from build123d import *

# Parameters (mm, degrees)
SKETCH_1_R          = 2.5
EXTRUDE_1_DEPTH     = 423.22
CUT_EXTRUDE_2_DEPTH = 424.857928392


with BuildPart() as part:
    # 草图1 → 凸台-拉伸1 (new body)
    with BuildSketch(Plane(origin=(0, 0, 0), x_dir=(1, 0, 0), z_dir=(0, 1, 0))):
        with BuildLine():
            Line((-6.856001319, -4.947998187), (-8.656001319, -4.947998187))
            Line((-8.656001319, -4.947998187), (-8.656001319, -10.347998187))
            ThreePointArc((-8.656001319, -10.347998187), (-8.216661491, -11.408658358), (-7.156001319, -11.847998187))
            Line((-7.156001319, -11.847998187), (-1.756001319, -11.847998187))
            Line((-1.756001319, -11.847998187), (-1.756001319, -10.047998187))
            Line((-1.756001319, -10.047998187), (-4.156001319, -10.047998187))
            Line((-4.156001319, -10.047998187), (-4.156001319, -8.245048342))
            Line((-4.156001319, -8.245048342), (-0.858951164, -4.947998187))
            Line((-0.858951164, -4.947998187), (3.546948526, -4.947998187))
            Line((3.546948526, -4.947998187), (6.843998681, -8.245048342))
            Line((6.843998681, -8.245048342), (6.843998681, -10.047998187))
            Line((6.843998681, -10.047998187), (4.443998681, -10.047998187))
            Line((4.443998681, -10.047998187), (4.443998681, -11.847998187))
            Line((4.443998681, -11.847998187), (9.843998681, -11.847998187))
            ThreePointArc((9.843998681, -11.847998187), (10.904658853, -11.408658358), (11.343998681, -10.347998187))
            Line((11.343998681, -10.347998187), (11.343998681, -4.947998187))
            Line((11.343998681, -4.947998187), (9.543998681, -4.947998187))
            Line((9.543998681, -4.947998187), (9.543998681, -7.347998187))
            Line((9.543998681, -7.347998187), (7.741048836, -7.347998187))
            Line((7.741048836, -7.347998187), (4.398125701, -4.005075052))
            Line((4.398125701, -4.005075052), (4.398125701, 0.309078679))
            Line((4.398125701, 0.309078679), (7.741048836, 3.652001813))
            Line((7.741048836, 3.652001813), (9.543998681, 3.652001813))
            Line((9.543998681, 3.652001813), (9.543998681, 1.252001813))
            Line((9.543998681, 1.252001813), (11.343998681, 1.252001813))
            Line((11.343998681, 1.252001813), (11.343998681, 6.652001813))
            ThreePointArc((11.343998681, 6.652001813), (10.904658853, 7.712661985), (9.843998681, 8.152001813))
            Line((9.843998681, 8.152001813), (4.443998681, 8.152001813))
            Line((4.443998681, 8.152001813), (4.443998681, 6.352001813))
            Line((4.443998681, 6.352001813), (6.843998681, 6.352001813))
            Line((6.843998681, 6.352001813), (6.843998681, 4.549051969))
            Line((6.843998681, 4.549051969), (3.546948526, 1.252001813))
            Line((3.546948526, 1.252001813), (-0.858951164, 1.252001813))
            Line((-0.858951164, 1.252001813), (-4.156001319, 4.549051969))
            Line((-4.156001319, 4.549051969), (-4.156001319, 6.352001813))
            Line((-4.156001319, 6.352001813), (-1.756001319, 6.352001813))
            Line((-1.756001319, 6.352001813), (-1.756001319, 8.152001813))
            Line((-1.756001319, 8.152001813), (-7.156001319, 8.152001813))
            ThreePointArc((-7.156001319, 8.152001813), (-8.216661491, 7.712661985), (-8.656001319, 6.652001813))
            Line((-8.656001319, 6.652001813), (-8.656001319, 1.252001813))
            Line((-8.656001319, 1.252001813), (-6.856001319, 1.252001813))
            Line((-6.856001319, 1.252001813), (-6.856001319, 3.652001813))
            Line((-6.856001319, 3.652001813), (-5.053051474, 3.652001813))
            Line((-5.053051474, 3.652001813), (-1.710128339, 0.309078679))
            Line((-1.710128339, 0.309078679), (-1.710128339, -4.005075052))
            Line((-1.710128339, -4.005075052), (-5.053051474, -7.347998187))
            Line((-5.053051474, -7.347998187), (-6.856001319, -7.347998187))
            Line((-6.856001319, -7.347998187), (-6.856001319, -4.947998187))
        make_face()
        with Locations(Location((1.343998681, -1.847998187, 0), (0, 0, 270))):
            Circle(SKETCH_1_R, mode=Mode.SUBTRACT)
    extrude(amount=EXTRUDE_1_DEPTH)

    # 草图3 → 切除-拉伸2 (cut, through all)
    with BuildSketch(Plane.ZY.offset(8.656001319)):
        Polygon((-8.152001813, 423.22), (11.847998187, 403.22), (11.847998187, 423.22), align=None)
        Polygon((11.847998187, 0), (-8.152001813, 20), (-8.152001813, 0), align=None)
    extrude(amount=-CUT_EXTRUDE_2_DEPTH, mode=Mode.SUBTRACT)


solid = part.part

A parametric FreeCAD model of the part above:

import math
import FreeCAD as App
import Part
import Sketcher
from FreeCAD import Vector
Q = App.Units.Quantity

doc = App.newDocument("Part")
params = doc.addObject("Spreadsheet::Sheet", "Params")
for row, (alias, value) in enumerate([
    ("sketch1_diameter", "5 mm"),
    ("sketch1_radius", "1.5 mm"),
    ("sketch1_width", "1.8 mm"),
    ("sketch1_width2", "5.4 mm"),
    ("sketch1_width3", "2.4 mm"),
    ("pad1_length", "423.22 mm"),
    ("sketch2_width", "20 mm"),
], start=1):
    params.set(f"A{row}", alias)
    params.set(f"B{row}", "=" + value)
    params.setAlias(f"B{row}", alias)

body = doc.addObject("PartDesign::Body", "Body")

sketch1 = doc.addObject("Sketcher::SketchObject", "Sketch")
body.addObject(sketch1)
sketch1.AttachmentSupport = (doc.XZ_Plane, [""])
sketch1.MapMode = "FlatFace"
sketch1.addGeometry(Part.LineSegment(Vector(-6.856001, 4.947998, 0), Vector(-8.656001, 4.947998, 0)), False)
sketch1.addGeometry(Part.LineSegment(Vector(-8.656001, 4.947998, 0), Vector(-8.656001, 10.347998, 0)), False)
sketch1.addGeometry(Part.ArcOfCircle(Part.Circle(Vector(-7.156001, 10.347998, 0), Vector(0, 0, 1), 1.5), math.radians(90), math.radians(180)), False)
sketch1.addGeometry(Part.LineSegment(Vector(-7.156001, 11.847998, 0), Vector(-1.756001, 11.847998, 0)), False)
sketch1.addGeometry(Part.LineSegment(Vector(-1.756001, 11.847998, 0), Vector(-1.756001, 10.047998, 0)), False)
sketch1.addGeometry(Part.LineSegment(Vector(-1.756001, 10.047998, 0), Vector(-4.156001, 10.047998, 0)), False)
sketch1.addGeometry(Part.LineSegment(Vector(-4.156001, 10.047998, 0), Vector(-4.156001, 8.245048, 0)), False)
sketch1.addGeometry(Part.LineSegment(Vector(-4.156001, 8.245048, 0), Vector(-0.858951, 4.947998, 0)), False)
sketch1.addGeometry(Part.LineSegment(Vector(-0.858951, 4.947998, 0), Vector(3.546949, 4.947998, 0)), False)
sketch1.addGeometry(Part.LineSegment(Vector(3.546949, 4.947998, 0), Vector(6.843999, 8.245048, 0)), False)
sketch1.addGeometry(Part.LineSegment(Vector(6.843999, 8.245048, 0), Vector(6.843999, 10.047998, 0)), False)
sketch1.addGeometry(Part.LineSegment(Vector(6.843999, 10.047998, 0), Vector(4.443999, 10.047998, 0)), False)
sketch1.addGeometry(Part.LineSegment(Vector(4.443999, 10.047998, 0), Vector(4.443999, 11.847998, 0)), False)
sketch1.addGeometry(Part.LineSegment(Vector(4.443999, 11.847998, 0), Vector(9.843999, 11.847998, 0)), False)
sketch1.addGeometry(Part.ArcOfCircle(Part.Circle(Vector(9.843999, 10.347998, 0), Vector(0, 0, 1), 1.5), math.radians(0), math.radians(90)), False)
sketch1.addGeometry(Part.LineSegment(Vector(11.343999, 10.347998, 0), Vector(11.343999, 4.947998, 0)), False)
sketch1.addGeometry(Part.LineSegment(Vector(11.343999, 4.947998, 0), Vector(9.543999, 4.947998, 0)), False)
sketch1.addGeometry(Part.LineSegment(Vector(9.543999, 4.947998, 0), Vector(9.543999, 7.347998, 0)), False)
sketch1.addGeometry(Part.LineSegment(Vector(9.543999, 7.347998, 0), Vector(7.741049, 7.347998, 0)), False)
sketch1.addGeometry(Part.LineSegment(Vector(7.741049, 7.347998, 0), Vector(4.398126, 4.005075, 0)), False)
sketch1.addGeometry(Part.LineSegment(Vector(4.398126, 4.005075, 0), Vector(4.398126, -0.309079, 0)), False)
sketch1.addGeometry(Part.LineSegment(Vector(4.398126, -0.309079, 0), Vector(7.741049, -3.652002, 0)), False)
sketch1.addGeometry(Part.LineSegment(Vector(7.741049, -3.652002, 0), Vector(9.543999, -3.652002, 0)), False)
sketch1.addGeometry(Part.LineSegment(Vector(9.543999, -3.652002, 0), Vector(9.543999, -1.252002, 0)), False)
sketch1.addGeometry(Part.LineSegment(Vector(9.543999, -1.252002, 0), Vector(11.343999, -1.252002, 0)), False)
sketch1.addGeometry(Part.LineSegment(Vector(11.343999, -1.252002, 0), Vector(11.343999, -6.652002, 0)), False)
sketch1.addGeometry(Part.ArcOfCircle(Part.Circle(Vector(9.843999, -6.652002, 0), Vector(0, 0, 1), 1.5), math.radians(-90), math.radians(0)), False)
sketch1.addGeometry(Part.LineSegment(Vector(9.843999, -8.152002, 0), Vector(4.443999, -8.152002, 0)), False)
sketch1.addGeometry(Part.LineSegment(Vector(4.443999, -8.152002, 0), Vector(4.443999, -6.352002, 0)), False)
sketch1.addGeometry(Part.LineSegment(Vector(4.443999, -6.352002, 0), Vector(6.843999, -6.352002, 0)), False)
sketch1.addGeometry(Part.LineSegment(Vector(6.843999, -6.352002, 0), Vector(6.843999, -4.549052, 0)), False)
sketch1.addGeometry(Part.LineSegment(Vector(6.843999, -4.549052, 0), Vector(3.546949, -1.252002, 0)), False)
sketch1.addGeometry(Part.LineSegment(Vector(3.546949, -1.252002, 0), Vector(-0.858951, -1.252002, 0)), False)
sketch1.addGeometry(Part.LineSegment(Vector(-0.858951, -1.252002, 0), Vector(-4.156001, -4.549052, 0)), False)
sketch1.addGeometry(Part.LineSegment(Vector(-4.156001, -4.549052, 0), Vector(-4.156001, -6.352002, 0)), False)
sketch1.addGeometry(Part.LineSegment(Vector(-4.156001, -6.352002, 0), Vector(-1.756001, -6.352002, 0)), False)
sketch1.addGeometry(Part.LineSegment(Vector(-1.756001, -6.352002, 0), Vector(-1.756001, -8.152002, 0)), False)
sketch1.addGeometry(Part.LineSegment(Vector(-1.756001, -8.152002, 0), Vector(-7.156001, -8.152002, 0)), False)
sketch1.addGeometry(Part.ArcOfCircle(Part.Circle(Vector(-7.156001, -6.652002, 0), Vector(0, 0, 1), 1.5), math.radians(180), math.radians(270)), False)
sketch1.addGeometry(Part.LineSegment(Vector(-8.656001, -6.652002, 0), Vector(-8.656001, -1.252002, 0)), False)
sketch1.addGeometry(Part.LineSegment(Vector(-8.656001, -1.252002, 0), Vector(-6.856001, -1.252002, 0)), False)
sketch1.addGeometry(Part.LineSegment(Vector(-6.856001, -1.252002, 0), Vector(-6.856001, -3.652002, 0)), False)
sketch1.addGeometry(Part.LineSegment(Vector(-6.856001, -3.652002, 0), Vector(-5.053051, -3.652002, 0)), False)
sketch1.addGeometry(Part.LineSegment(Vector(-5.053051, -3.652002, 0), Vector(-1.710128, -0.309079, 0)), False)
sketch1.addGeometry(Part.LineSegment(Vector(-1.710128, -0.309079, 0), Vector(-1.710128, 4.005075, 0)), False)
sketch1.addGeometry(Part.LineSegment(Vector(-1.710128, 4.005075, 0), Vector(-5.053051, 7.347998, 0)), False)
sketch1.addGeometry(Part.LineSegment(Vector(-5.053051, 7.347998, 0), Vector(-6.856001, 7.347998, 0)), False)
sketch1.addGeometry(Part.LineSegment(Vector(-6.856001, 7.347998, 0), Vector(-6.856001, 4.947998, 0)), False)
sketch1.addGeometry(Part.Circle(Vector(1.343999, 1.847998, 0), Vector(0, 0, 1), 2.5), False)
sketch1.addConstraint(Sketcher.Constraint("Coincident", 0, 2, 1, 1))
sketch1.addConstraint(Sketcher.Constraint("Tangent", 1, 2, 2, 2))
sketch1.addConstraint(Sketcher.Constraint("Tangent", 2, 1, 3, 1))
sketch1.addConstraint(Sketcher.Constraint("Coincident", 3, 2, 4, 1))
sketch1.addConstraint(Sketcher.Constraint("Coincident", 4, 2, 5, 1))
sketch1.addConstraint(Sketcher.Constraint("Coincident", 5, 2, 6, 1))
sketch1.addConstraint(Sketcher.Constraint("Coincident", 6, 2, 7, 1))
sketch1.addConstraint(Sketcher.Constraint("Coincident", 7, 2, 8, 1))
sketch1.addConstraint(Sketcher.Constraint("Coincident", 8, 2, 9, 1))
sketch1.addConstraint(Sketcher.Constraint("Coincident", 9, 2, 10, 1))
sketch1.addConstraint(Sketcher.Constraint("Coincident", 10, 2, 11, 1))
sketch1.addConstraint(Sketcher.Constraint("Coincident", 11, 2, 12, 1))
sketch1.addConstraint(Sketcher.Constraint("Coincident", 12, 2, 13, 1))
sketch1.addConstraint(Sketcher.Constraint("Tangent", 13, 2, 14, 2))
sketch1.addConstraint(Sketcher.Constraint("Tangent", 14, 1, 15, 1))
sketch1.addConstraint(Sketcher.Constraint("Coincident", 15, 2, 16, 1))
sketch1.addConstraint(Sketcher.Constraint("Coincident", 16, 2, 17, 1))
sketch1.addConstraint(Sketcher.Constraint("Coincident", 17, 2, 18, 1))
sketch1.addConstraint(Sketcher.Constraint("Coincident", 18, 2, 19, 1))
sketch1.addConstraint(Sketcher.Constraint("Coincident", 19, 2, 20, 1))
sketch1.addConstraint(Sketcher.Constraint("Coincident", 20, 2, 21, 1))
sketch1.addConstraint(Sketcher.Constraint("Coincident", 21, 2, 22, 1))
sketch1.addConstraint(Sketcher.Constraint("Coincident", 22, 2, 23, 1))
sketch1.addConstraint(Sketcher.Constraint("Coincident", 23, 2, 24, 1))
sketch1.addConstraint(Sketcher.Constraint("Coincident", 24, 2, 25, 1))
sketch1.addConstraint(Sketcher.Constraint("Tangent", 25, 2, 26, 2))
sketch1.addConstraint(Sketcher.Constraint("Tangent", 26, 1, 27, 1))
sketch1.addConstraint(Sketcher.Constraint("Coincident", 27, 2, 28, 1))
sketch1.addConstraint(Sketcher.Constraint("Coincident", 28, 2, 29, 1))
sketch1.addConstraint(Sketcher.Constraint("Coincident", 29, 2, 30, 1))
sketch1.addConstraint(Sketcher.Constraint("Coincident", 30, 2, 31, 1))
sketch1.addConstraint(Sketcher.Constraint("Coincident", 31, 2, 32, 1))
sketch1.addConstraint(Sketcher.Constraint("Coincident", 32, 2, 33, 1))
sketch1.addConstraint(Sketcher.Constraint("Coincident", 33, 2, 34, 1))
sketch1.addConstraint(Sketcher.Constraint("Coincident", 34, 2, 35, 1))
sketch1.addConstraint(Sketcher.Constraint("Coincident", 35, 2, 36, 1))
sketch1.addConstraint(Sketcher.Constraint("Coincident", 36, 2, 37, 1))
sketch1.addConstraint(Sketcher.Constraint("Tangent", 37, 2, 38, 2))
sketch1.addConstraint(Sketcher.Constraint("Tangent", 38, 1, 39, 1))
sketch1.addConstraint(Sketcher.Constraint("Coincident", 39, 2, 40, 1))
sketch1.addConstraint(Sketcher.Constraint("Coincident", 40, 2, 41, 1))
sketch1.addConstraint(Sketcher.Constraint("Coincident", 41, 2, 42, 1))
sketch1.addConstraint(Sketcher.Constraint("Coincident", 42, 2, 43, 1))
sketch1.addConstraint(Sketcher.Constraint("Coincident", 43, 2, 44, 1))
sketch1.addConstraint(Sketcher.Constraint("Coincident", 44, 2, 45, 1))
sketch1.addConstraint(Sketcher.Constraint("Coincident", 45, 2, 46, 1))
sketch1.addConstraint(Sketcher.Constraint("Coincident", 46, 2, 47, 1))
sketch1.addConstraint(Sketcher.Constraint("Coincident", 47, 2, 0, 1))
sketch1.addConstraint(Sketcher.Constraint("Horizontal", 0))
sketch1.addConstraint(Sketcher.Constraint("Vertical", 1))
sketch1.addConstraint(Sketcher.Constraint("Horizontal", 3))
sketch1.addConstraint(Sketcher.Constraint("Vertical", 4))
sketch1.addConstraint(Sketcher.Constraint("Horizontal", 5))
sketch1.addConstraint(Sketcher.Constraint("Vertical", 6))
sketch1.addConstraint(Sketcher.Constraint("Horizontal", 8))
sketch1.addConstraint(Sketcher.Constraint("Vertical", 10))
sketch1.addConstraint(Sketcher.Constraint("Horizontal", 11))
sketch1.addConstraint(Sketcher.Constraint("Vertical", 12))
sketch1.addConstraint(Sketcher.Constraint("Horizontal", 13))
sketch1.addConstraint(Sketcher.Constraint("Vertical", 15))
sketch1.addConstraint(Sketcher.Constraint("Horizontal", 16))
sketch1.addConstraint(Sketcher.Constraint("Vertical", 17))
sketch1.addConstraint(Sketcher.Constraint("Horizontal", 18))
sketch1.addConstraint(Sketcher.Constraint("Vertical", 20))
sketch1.addConstraint(Sketcher.Constraint("Horizontal", 22))
sketch1.addConstraint(Sketcher.Constraint("Vertical", 23))
sketch1.addConstraint(Sketcher.Constraint("Horizontal", 24))
sketch1.addConstraint(Sketcher.Constraint("Vertical", 25))
sketch1.addConstraint(Sketcher.Constraint("Horizontal", 27))
sketch1.addConstraint(Sketcher.Constraint("Vertical", 28))
sketch1.addConstraint(Sketcher.Constraint("Horizontal", 29))
sketch1.addConstraint(Sketcher.Constraint("Vertical", 30))
sketch1.addConstraint(Sketcher.Constraint("Horizontal", 32))
sketch1.addConstraint(Sketcher.Constraint("Vertical", 34))
sketch1.addConstraint(Sketcher.Constraint("Horizontal", 35))
sketch1.addConstraint(Sketcher.Constraint("Vertical", 36))
sketch1.addConstraint(Sketcher.Constraint("Horizontal", 37))
sketch1.addConstraint(Sketcher.Constraint("Vertical", 39))
sketch1.addConstraint(Sketcher.Constraint("Horizontal", 40))
sketch1.addConstraint(Sketcher.Constraint("Vertical", 41))
sketch1.addConstraint(Sketcher.Constraint("Horizontal", 42))
sketch1.addConstraint(Sketcher.Constraint("Vertical", 44))
sketch1.addConstraint(Sketcher.Constraint("Horizontal", 46))
sketch1.addConstraint(Sketcher.Constraint("Vertical", 47))
sketch1.addConstraint(Sketcher.Constraint("Equal", 2, 14))
sketch1.addConstraint(Sketcher.Constraint("Equal", 14, 26))
sketch1.addConstraint(Sketcher.Constraint("Equal", 26, 38))
sketch1.addConstraint(Sketcher.Constraint("Perpendicular", 7, 9))
sketch1.addConstraint(Sketcher.Constraint("Parallel", 9, 19))
sketch1.addConstraint(Sketcher.Constraint("Perpendicular", 19, 21))
sketch1.addConstraint(Sketcher.Constraint("Parallel", 21, 31))
sketch1.addConstraint(Sketcher.Constraint("Perpendicular", 31, 33))
sketch1.addConstraint(Sketcher.Constraint("Parallel", 33, 43))
sketch1.addConstraint(Sketcher.Constraint("Perpendicular", 43, 45))
sketch1.addConstraint(Sketcher.Constraint("Horizontal", 2, 3, 14, 3))
sketch1.addConstraint(Sketcher.Constraint("Horizontal", 26, 3, 38, 3))
sketch1.addConstraint(Sketcher.Constraint("Horizontal", 0, 2, 7, 2))
sketch1.addConstraint(Sketcher.Constraint("Horizontal", 6, 2, 9, 2))
sketch1.addConstraint(Sketcher.Constraint("Horizontal", 5, 2, 10, 2))
sketch1.addConstraint(Sketcher.Constraint("Horizontal", 8, 2, 15, 2))
sketch1.addConstraint(Sketcher.Constraint("Horizontal", 24, 2, 31, 2))
sketch1.addConstraint(Sketcher.Constraint("Horizontal", 30, 2, 33, 2))
sketch1.addConstraint(Sketcher.Constraint("Horizontal", 29, 2, 34, 2))
sketch1.addConstraint(Sketcher.Constraint("Horizontal", 32, 2, 39, 2))
sketch1.addConstraint(Sketcher.Constraint("Horizontal", 22, 2, 41, 2))
sketch1.addConstraint(Sketcher.Constraint("Horizontal", 20, 2, 43, 2))
sketch1.addConstraint(Sketcher.Constraint("Horizontal", 19, 2, 44, 2))
sketch1.addConstraint(Sketcher.Constraint("Horizontal", 18, 2, 45, 2))
sketch1.addConstraint(Sketcher.Constraint("Vertical", 14, 3, 26, 3))
sketch1.addConstraint(Sketcher.Constraint("Vertical", 2, 3, 38, 3))
sketch1.addConstraint(Sketcher.Constraint("Vertical", 18, 2, 21, 2))
sketch1.addConstraint(Sketcher.Constraint("Vertical", 17, 2, 22, 2))
sketch1.addConstraint(Sketcher.Constraint("Vertical", 12, 2, 27, 2))
sketch1.addConstraint(Sketcher.Constraint("Vertical", 10, 2, 29, 2))
sketch1.addConstraint(Sketcher.Constraint("Vertical", 8, 2, 31, 2))
sketch1.addConstraint(Sketcher.Constraint("Vertical", 7, 2, 32, 2))
sketch1.addConstraint(Sketcher.Constraint("Vertical", 6, 2, 33, 2))
sketch1.addConstraint(Sketcher.Constraint("Vertical", 4, 2, 35, 2))
sketch1.addConstraint(Sketcher.Constraint("Vertical", 41, 2, 46, 2))
sketch1.addConstraint(Sketcher.Constraint("Equal", 5, 11))
sketch1.addConstraint(Sketcher.Constraint("Equal", 3, 13))
sketch1.addConstraint(Sketcher.Constraint("Equal", 0, 16))
sketch1.addConstraint(Sketcher.Constraint("Equal", 22, 42))
sketch1.addConstraint(Sketcher.Constraint("Equal", 37, 1))
sketch1.addConstraint(Sketcher.Constraint("Equal", 40, 4))
sketch1.addConstraint(Sketcher.Constraint("Equal", 46, 6))
sketch1.addConstraint(Sketcher.Constraint("Equal", 35, 17))
sketch1.addConstraint(Sketcher.Constraint("Equal", 17, 23))
sketch1.addConstraint(Sketcher.Constraint("Equal", 15, 25))
sketch1.addConstraint(Sketcher.Constraint("Equal", 12, 28))
sketch1.addConstraint(Sketcher.Constraint("Diameter", 48, Q("5 mm")))
sketch1.addConstraint(Sketcher.Constraint("Radius", 2, Q("1.5 mm")))
sketch1.addConstraint(Sketcher.Constraint("DistanceX", 0, 2, 0, 1, Q("1.8 mm")))
sketch1.addConstraint(Sketcher.Constraint("DistanceX", 3, 1, 3, 2, Q("5.4 mm")))
sketch1.addConstraint(Sketcher.Constraint("DistanceX", 5, 2, 5, 1, Q("2.4 mm")))
sketch1.addConstraint(Sketcher.Constraint("DistanceX", 2, 3, 14, 3, Q("17 mm")))
sketch1.addConstraint(Sketcher.Constraint("DistanceY", 26, 3, 14, 3, Q("17 mm")))
sketch1.addConstraint(Sketcher.Constraint("DistanceX", 0, 2, 48, 3, Q("10 mm")))
sketch1.addConstraint(Sketcher.Constraint("DistanceY", 48, 3, 2, 1, Q("10 mm")))
sketch1.addConstraint(Sketcher.Constraint("DistanceX", 8, 1, 8, 2, Q("4.4059 mm")))
sketch1.addConstraint(Sketcher.Constraint("DistanceX", 2, 3, -1, 1, Q("7.156001 mm")))
sketch1.addConstraint(Sketcher.Constraint("DistanceY", -1, 1, 2, 3, Q("10.347998 mm")))
sketch1.addConstraint(Sketcher.Constraint("DistanceY", 20, 2, 20, 1, Q("4.314154 mm")))
sketch1.setExpression("Constraints[130]", "Params.sketch1_diameter")
sketch1.setExpression("Constraints[131]", "Params.sketch1_radius")
sketch1.setExpression("Constraints[132]", "Params.sketch1_width")
sketch1.setExpression("Constraints[133]", "Params.sketch1_width2")
sketch1.setExpression("Constraints[134]", "Params.sketch1_width3")
pad1 = doc.addObject("PartDesign::Pad", "Pad")
body.addObject(pad1)
pad1.Profile = sketch1
pad1.setExpression("Length", "Params.pad1_length")
pad1.Reversed = True

sketch2 = doc.addObject("Sketcher::SketchObject", "Sketch001")
body.addObject(sketch2)
sketch2.AttachmentSupport = (doc.YZ_Plane, [""])
sketch2.MapMode = "FlatFace"
sketch2.AttachmentOffset = App.Placement(Vector(0, 0, -8.656001), App.Rotation())
sketch2.addGeometry(Part.LineSegment(Vector(423.22, -8.152002, 0), Vector(403.22, 11.847998, 0)), False)
sketch2.addGeometry(Part.LineSegment(Vector(403.22, 11.847998, 0), Vector(423.22, 11.847998, 0)), False)
sketch2.addGeometry(Part.LineSegment(Vector(423.22, 11.847998, 0), Vector(423.22, -8.152002, 0)), False)
sketch2.addGeometry(Part.LineSegment(Vector(0, 11.847998, 0), Vector(20, -8.152002, 0)), False)
sketch2.addGeometry(Part.LineSegment(Vector(20, -8.152002, 0), Vector(0, -8.152002, 0)), False)
sketch2.addGeometry(Part.LineSegment(Vector(0, -8.152002, 0), Vector(0, 11.847998, 0)), False)
sketch2.addConstraint(Sketcher.Constraint("Coincident", 0, 2, 1, 1))
sketch2.addConstraint(Sketcher.Constraint("Coincident", 1, 2, 2, 1))
sketch2.addConstraint(Sketcher.Constraint("Coincident", 2, 2, 0, 1))
sketch2.addConstraint(Sketcher.Constraint("Coincident", 3, 2, 4, 1))
sketch2.addConstraint(Sketcher.Constraint("Coincident", 4, 2, 5, 1))
sketch2.addConstraint(Sketcher.Constraint("Coincident", 5, 2, 3, 1))
sketch2.addConstraint(Sketcher.Constraint("Horizontal", 1))
sketch2.addConstraint(Sketcher.Constraint("Vertical", 2))
sketch2.addConstraint(Sketcher.Constraint("Horizontal", 4))
sketch2.addConstraint(Sketcher.Constraint("Vertical", 5))
sketch2.addConstraint(Sketcher.Constraint("PointOnObject", 4, 2, -2))
sketch2.addConstraint(Sketcher.Constraint("Parallel", 0, 3))
sketch2.addConstraint(Sketcher.Constraint("Horizontal", 2, 2, 3, 2))
sketch2.addConstraint(Sketcher.Constraint("Horizontal", 1, 2, 5, 2))
sketch2.addConstraint(Sketcher.Constraint("Equal", 4, 2))
sketch2.addConstraint(Sketcher.Constraint("DistanceX", 1, 1, 1, 2, Q("20 mm")))
sketch2.addConstraint(Sketcher.Constraint("DistanceX", -1, 1, 0, 2, Q("403.22 mm")))
sketch2.addConstraint(Sketcher.Constraint("DistanceY", -1, 1, 0, 2, Q("11.847998 mm")))
sketch2.setExpression("Constraints[15]", "Params.sketch2_width")
pocket1 = doc.addObject("PartDesign::Pocket", "Pocket")
body.addObject(pocket1)
pocket1.Profile = sketch2
pocket1.Type = "ThroughAll"
pocket1.Reversed = True

doc.recompute()
